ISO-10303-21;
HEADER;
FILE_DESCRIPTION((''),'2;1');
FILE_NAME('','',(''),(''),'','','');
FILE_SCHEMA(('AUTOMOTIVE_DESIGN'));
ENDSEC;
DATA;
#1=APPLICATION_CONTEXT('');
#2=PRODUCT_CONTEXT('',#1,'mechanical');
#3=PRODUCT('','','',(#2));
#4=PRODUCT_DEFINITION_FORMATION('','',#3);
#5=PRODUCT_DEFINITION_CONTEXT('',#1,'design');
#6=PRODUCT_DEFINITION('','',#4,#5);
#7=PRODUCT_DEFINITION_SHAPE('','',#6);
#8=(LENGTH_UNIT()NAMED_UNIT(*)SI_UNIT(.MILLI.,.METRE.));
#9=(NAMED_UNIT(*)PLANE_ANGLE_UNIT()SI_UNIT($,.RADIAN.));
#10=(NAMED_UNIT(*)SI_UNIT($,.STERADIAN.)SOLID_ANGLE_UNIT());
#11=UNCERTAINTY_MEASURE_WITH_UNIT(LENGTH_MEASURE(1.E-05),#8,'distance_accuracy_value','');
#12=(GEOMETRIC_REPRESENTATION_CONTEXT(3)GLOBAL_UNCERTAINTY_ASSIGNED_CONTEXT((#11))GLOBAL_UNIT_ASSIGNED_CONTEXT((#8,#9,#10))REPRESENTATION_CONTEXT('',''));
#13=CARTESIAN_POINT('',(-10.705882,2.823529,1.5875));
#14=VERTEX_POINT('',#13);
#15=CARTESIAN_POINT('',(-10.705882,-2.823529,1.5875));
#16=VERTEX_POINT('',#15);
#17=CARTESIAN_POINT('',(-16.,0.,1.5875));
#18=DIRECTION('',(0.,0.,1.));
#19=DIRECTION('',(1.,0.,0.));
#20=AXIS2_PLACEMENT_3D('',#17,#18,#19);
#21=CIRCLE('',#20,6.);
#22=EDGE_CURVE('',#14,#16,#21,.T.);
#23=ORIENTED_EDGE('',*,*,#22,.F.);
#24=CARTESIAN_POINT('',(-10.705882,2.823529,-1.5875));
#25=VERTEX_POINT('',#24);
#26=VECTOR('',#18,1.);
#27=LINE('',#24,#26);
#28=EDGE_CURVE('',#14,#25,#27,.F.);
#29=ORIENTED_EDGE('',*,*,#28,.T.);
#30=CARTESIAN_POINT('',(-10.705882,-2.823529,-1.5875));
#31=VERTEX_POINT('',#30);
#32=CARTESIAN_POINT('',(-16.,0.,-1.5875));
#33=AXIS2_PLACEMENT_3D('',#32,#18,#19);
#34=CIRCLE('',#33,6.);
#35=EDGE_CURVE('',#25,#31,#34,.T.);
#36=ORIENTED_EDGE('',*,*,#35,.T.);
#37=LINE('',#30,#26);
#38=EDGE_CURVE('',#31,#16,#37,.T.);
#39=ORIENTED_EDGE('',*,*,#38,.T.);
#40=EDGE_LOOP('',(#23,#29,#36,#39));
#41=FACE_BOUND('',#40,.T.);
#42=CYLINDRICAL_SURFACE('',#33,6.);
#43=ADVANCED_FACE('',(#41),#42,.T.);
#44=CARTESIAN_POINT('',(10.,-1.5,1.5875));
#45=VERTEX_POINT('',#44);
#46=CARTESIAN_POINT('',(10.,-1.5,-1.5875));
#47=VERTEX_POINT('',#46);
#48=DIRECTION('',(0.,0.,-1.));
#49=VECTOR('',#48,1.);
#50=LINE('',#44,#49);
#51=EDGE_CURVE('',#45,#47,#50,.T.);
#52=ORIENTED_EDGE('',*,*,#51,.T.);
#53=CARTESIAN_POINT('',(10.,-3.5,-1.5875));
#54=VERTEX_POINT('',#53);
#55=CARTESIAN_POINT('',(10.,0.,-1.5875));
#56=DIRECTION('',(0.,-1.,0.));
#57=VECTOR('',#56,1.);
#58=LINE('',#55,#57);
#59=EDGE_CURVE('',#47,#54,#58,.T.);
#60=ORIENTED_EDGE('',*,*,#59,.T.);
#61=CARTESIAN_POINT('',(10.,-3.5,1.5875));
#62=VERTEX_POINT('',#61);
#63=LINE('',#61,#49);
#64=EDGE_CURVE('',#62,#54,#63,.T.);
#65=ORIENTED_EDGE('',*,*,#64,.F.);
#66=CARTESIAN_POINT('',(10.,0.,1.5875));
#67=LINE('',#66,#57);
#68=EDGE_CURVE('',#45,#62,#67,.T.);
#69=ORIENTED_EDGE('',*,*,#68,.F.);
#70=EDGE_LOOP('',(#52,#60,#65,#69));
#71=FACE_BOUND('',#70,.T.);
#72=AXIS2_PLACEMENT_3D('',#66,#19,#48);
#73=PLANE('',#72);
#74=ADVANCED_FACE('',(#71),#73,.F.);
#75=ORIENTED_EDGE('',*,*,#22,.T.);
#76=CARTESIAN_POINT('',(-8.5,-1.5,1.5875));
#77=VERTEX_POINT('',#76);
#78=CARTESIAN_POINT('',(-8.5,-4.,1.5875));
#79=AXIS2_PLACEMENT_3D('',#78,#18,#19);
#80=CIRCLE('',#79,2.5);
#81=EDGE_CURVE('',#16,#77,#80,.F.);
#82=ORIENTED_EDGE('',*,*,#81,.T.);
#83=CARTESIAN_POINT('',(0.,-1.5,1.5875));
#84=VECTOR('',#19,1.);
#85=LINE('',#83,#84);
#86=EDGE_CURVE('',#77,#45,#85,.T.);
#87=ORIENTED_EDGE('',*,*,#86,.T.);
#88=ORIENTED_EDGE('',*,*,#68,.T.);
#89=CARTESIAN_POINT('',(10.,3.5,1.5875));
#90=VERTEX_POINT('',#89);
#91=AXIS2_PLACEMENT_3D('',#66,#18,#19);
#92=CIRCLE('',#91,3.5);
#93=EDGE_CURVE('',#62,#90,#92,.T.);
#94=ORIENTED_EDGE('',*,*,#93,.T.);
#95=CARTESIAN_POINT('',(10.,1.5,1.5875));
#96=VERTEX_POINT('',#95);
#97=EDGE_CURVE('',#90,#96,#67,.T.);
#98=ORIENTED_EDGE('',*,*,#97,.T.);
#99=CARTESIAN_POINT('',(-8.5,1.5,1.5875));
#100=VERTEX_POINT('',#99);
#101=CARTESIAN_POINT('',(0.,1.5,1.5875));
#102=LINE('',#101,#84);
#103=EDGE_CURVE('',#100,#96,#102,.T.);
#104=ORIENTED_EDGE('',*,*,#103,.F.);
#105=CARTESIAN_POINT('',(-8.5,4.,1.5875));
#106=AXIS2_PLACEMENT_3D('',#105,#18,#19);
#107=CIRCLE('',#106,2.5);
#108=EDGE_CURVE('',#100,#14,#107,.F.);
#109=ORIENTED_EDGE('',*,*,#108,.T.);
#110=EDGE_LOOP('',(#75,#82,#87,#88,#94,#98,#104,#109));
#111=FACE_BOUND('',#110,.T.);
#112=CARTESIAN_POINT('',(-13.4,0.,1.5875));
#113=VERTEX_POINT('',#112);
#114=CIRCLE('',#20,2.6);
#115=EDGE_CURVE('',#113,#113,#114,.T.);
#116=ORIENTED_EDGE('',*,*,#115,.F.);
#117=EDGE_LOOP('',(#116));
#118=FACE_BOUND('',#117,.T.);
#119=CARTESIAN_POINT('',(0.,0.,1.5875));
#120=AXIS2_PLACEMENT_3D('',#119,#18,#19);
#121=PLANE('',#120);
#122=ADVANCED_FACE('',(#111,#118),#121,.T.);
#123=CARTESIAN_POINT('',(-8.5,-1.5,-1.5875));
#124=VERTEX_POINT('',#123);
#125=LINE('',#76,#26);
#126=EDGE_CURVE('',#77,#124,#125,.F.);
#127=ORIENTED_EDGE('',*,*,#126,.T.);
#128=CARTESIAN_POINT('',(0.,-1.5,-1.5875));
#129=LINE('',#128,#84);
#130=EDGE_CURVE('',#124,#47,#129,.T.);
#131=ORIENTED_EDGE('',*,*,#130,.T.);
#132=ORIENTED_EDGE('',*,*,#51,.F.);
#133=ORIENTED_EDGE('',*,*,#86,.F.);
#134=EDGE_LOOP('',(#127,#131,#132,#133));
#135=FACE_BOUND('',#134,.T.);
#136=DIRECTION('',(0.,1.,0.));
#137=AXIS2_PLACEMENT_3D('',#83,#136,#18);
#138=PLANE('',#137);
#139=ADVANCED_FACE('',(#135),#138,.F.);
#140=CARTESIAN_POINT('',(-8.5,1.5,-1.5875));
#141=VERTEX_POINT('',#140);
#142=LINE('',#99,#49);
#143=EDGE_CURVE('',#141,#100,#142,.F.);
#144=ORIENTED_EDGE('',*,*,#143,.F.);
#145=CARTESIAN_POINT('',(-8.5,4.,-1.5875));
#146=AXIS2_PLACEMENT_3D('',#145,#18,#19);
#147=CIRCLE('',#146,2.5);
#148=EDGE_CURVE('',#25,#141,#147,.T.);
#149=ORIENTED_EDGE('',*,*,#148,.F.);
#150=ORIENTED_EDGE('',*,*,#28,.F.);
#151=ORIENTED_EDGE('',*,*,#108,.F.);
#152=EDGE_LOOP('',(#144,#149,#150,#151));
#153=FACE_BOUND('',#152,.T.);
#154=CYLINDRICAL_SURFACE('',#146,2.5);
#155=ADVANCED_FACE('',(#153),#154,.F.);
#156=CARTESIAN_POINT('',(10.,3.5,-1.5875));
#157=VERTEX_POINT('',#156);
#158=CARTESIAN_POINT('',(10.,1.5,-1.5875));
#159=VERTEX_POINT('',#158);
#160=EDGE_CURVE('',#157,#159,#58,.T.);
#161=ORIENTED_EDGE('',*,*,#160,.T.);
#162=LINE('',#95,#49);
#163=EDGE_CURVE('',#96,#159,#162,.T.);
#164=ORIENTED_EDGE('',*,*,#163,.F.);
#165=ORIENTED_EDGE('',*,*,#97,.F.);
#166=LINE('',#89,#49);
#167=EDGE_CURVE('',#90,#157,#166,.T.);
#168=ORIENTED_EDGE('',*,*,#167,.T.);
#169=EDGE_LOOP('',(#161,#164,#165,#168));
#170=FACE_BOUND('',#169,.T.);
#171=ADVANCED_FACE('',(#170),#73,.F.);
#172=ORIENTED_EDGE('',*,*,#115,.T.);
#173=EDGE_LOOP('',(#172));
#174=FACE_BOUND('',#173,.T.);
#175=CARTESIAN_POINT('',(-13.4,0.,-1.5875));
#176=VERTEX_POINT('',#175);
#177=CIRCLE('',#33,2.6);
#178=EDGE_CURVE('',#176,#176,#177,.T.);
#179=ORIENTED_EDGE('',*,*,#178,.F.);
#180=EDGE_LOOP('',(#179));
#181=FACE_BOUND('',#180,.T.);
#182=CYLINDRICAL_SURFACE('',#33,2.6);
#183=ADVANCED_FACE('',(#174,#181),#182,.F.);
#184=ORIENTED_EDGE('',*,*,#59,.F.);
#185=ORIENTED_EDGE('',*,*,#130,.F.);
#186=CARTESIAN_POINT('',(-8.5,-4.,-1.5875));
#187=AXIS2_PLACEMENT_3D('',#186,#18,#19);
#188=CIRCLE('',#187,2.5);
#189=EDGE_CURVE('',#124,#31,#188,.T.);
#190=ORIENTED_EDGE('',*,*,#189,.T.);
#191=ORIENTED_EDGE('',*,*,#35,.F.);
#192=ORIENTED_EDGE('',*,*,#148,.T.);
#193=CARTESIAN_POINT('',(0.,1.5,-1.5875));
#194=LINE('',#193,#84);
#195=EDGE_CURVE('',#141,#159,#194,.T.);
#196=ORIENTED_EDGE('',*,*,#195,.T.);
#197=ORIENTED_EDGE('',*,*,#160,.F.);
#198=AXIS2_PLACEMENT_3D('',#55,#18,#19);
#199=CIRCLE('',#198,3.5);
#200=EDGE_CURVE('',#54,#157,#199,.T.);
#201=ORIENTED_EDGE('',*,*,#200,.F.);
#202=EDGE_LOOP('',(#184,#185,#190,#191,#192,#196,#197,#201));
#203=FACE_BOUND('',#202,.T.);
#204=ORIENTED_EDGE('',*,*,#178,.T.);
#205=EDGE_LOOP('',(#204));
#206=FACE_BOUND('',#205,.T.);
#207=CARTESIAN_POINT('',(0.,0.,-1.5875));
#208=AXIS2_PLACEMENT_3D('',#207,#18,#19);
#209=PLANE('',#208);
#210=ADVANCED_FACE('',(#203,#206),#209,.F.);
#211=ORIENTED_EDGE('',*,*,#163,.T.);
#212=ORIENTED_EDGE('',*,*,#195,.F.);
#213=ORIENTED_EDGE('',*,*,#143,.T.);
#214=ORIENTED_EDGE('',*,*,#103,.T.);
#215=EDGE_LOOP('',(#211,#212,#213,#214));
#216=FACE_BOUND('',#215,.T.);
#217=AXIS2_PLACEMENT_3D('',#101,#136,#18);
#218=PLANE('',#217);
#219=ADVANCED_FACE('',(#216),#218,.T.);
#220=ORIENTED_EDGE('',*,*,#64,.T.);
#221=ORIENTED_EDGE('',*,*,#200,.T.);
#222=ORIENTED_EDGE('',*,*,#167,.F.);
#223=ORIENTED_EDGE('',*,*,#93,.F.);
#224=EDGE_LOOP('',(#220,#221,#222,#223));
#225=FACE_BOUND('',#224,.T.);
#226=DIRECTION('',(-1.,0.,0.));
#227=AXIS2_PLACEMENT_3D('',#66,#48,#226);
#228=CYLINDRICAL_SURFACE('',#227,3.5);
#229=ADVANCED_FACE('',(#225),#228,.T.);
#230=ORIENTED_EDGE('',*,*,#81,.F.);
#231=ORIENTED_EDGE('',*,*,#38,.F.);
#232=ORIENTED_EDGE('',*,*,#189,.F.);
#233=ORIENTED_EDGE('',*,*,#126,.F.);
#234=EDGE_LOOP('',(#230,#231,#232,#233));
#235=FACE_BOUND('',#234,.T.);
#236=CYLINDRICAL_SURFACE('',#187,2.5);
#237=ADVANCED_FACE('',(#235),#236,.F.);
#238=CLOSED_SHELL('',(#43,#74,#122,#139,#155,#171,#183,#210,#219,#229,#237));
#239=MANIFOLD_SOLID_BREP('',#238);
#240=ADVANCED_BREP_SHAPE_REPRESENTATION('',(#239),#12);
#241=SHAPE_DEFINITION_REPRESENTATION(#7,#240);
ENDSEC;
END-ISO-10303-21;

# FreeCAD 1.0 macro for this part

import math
import FreeCAD as App
import Part
import Sketcher
from FreeCAD import Vector
Q = App.Units.Quantity


def edges_at(feature, points):
    """Names of the edges that pass closest to the given points."""
    edges = feature.Shape.Edges
    near = lambda p: min(range(len(edges)), key=lambda i: edges[i].distToShape(Part.Vertex(*p))[0])
    return sorted({f"Edge{near(p) + 1}" for p in points})

doc = App.newDocument("Part")
body = doc.addObject("PartDesign::Body", "Body")

# Sketch on XY plane
sketch1 = doc.addObject("Sketcher::SketchObject", "Sketch")
body.addObject(sketch1)
sketch1.AttachmentSupport = (doc.XY_Plane, [""])
sketch1.MapMode = "FlatFace"
sketch1.addGeometry([
    Part.LineSegment(Vector(10, 3.5, 0), Vector(10, 1.5, 0)),  # 0
    Part.LineSegment(Vector(10, 1.5, 0), Vector(-10, 1.5, 0)),  # 1
    Part.LineSegment(Vector(-10, 1.5, 0), Vector(-10, -1.5, 0)),  # 2
    Part.LineSegment(Vector(-10, -1.5, 0), Vector(10, -1.5, 0)),  # 3
    Part.LineSegment(Vector(10, -1.5, 0), Vector(10, -3.5, 0)),  # 4
    Part.ArcOfCircle(Part.Circle(Vector(10, 0, 0), Vector(0, 0, 1), 3.5), math.radians(-90), math.radians(90)),  # 5
], False)
sketch1.addConstraint([
    Sketcher.Constraint("Coincident", 0, 2, 1, 1),
    Sketcher.Constraint("Coincident", 1, 2, 2, 1),
    Sketcher.Constraint("Coincident", 2, 2, 3, 1),
    Sketcher.Constraint("Coincident", 3, 2, 4, 1),
    Sketcher.Constraint("Coincident", 4, 2, 5, 1),
    Sketcher.Constraint("Coincident", 5, 2, 0, 1),
    Sketcher.Constraint("Vertical", 0),
    Sketcher.Constraint("Horizontal", 1),
    Sketcher.Constraint("Vertical", 2),
    Sketcher.Constraint("Horizontal", 3),
    Sketcher.Constraint("Vertical", 4),
    Sketcher.Constraint("Symmetric", 0, 2, 2, 2, -1, 1),
    Sketcher.Constraint("Symmetric", 4, 2, 5, 2, -1),
    Sketcher.Constraint("Vertical", 5, 3, 0, 2),
    Sketcher.Constraint("Radius", 5, Q("3.5 mm")),
    Sketcher.Constraint("DistanceX", 1, 2, 1, 1, Q("20 mm")),
    Sketcher.Constraint("DistanceY", 0, 2, 0, 1, Q("2 mm")),
])
pad1 = doc.addObject("PartDesign::Pad", "Pad")
body.addObject(pad1)
pad1.Profile = sketch1
pad1.Length = 3.175
pad1.Midplane = True
body2 = doc.addObject("PartDesign::Body", "Body001")

# Sketch on XY plane
sketch2 = doc.addObject("Sketcher::SketchObject", "Sketch001")
body2.addObject(sketch2)
sketch2.AttachmentSupport = (doc.getObject("XY_Plane001"), [""])
sketch2.MapMode = "FlatFace"
sketch2.AttachmentOffset = App.Placement(Vector(0, 0, 1.5875), App.Rotation())
sketch2.addGeometry(Part.Circle(Vector(-16, 0, 0), Vector(0, 0, 1), 6), False)
sketch2.addConstraint([
    Sketcher.Constraint("PointOnObject", 0, 3, -1),
    Sketcher.Constraint("Diameter", 0, Q("12 mm")),
    Sketcher.Constraint("DistanceX", 0, 3, -1, 1, Q("16 mm")),
])
pad2 = doc.addObject("PartDesign::Pad", "Pad001")
body2.addObject(pad2)
pad2.Profile = sketch2
pad2.Length = 3.175
pad2.Reversed = True

# Sketch on XY plane
sketch3 = doc.addObject("Sketcher::SketchObject", "Sketch002")
body2.addObject(sketch3)
sketch3.AttachmentSupport = (doc.getObject("XY_Plane001"), [""])
sketch3.MapMode = "FlatFace"
sketch3.AttachmentOffset = App.Placement(Vector(0, 0, 1.5875), App.Rotation())
sketch3.addGeometry(Part.Circle(Vector(-16, 0, 0), Vector(0, 0, 1), 2.6), False)
sketch3.addConstraint([
    Sketcher.Constraint("PointOnObject", 0, 3, -1),
    Sketcher.Constraint("Diameter", 0, Q("5.2 mm")),
    Sketcher.Constraint("DistanceX", 0, 3, -1, 1, Q("16 mm")),
])
pocket1 = doc.addObject("PartDesign::Pocket", "Pocket")
body2.addObject(pocket1)
pocket1.Profile = sketch3
pocket1.Type = "ThroughAll"
body.AllowCompound = True
doc.recompute()

boolean = doc.addObject("PartDesign::Boolean", "Boolean")
body.addObject(boolean)
boolean.Type = "Fuse"
boolean.addObjects([body2])

# Sketch on XY plane
sketch4 = doc.addObject("Sketcher::SketchObject", "Sketch003")
body.addObject(sketch4)
sketch4.AttachmentSupport = (doc.XY_Plane, [""])
sketch4.MapMode = "FlatFace"
sketch4.AttachmentOffset = App.Placement(Vector(0, 0, 1.5875), App.Rotation())
sketch4.addGeometry([
    Part.LineSegment(Vector(-10, -1.5, 0), Vector(-10, 0, 0)),
    Part.LineSegment(Vector(-10, 0, 0), Vector(-10.190525, -1.5, 0)),
    Part.LineSegment(Vector(-10.190525, -1.5, 0), Vector(-10, -1.5, 0)),
], False)
sketch4.addConstraint([
    Sketcher.Constraint("Coincident", 0, 2, 1, 1),
    Sketcher.Constraint("Coincident", 1, 2, 2, 1),
    Sketcher.Constraint("Coincident", 2, 2, 0, 1),
    Sketcher.Constraint("Vertical", 0),
    Sketcher.Constraint("Horizontal", 2),
    Sketcher.Constraint("PointOnObject", 0, 2, -1),
    Sketcher.Constraint("DistanceY", 0, 1, 0, 2, Q("1.5 mm")),
    Sketcher.Constraint("DistanceX", 0, 2, -1, 1, Q("10 mm")),
    Sketcher.Constraint("Distance", 1, Q("1.512052 mm")),
])
pad3 = doc.addObject("PartDesign::Pad", "Pad002")
body.addObject(pad3)
pad3.Profile = sketch4
pad3.Length = 3.175
pad3.Reversed = True
doc.recompute()

mirrored = doc.addObject("PartDesign::Mirrored", "Mirrored")
body.addObject(mirrored)
mirrored.Originals = [pad3]
mirrored.MirrorPlane = (doc.XZ_Plane, [""])
body.Tip = mirrored
doc.recompute()

fillet = doc.addObject("PartDesign::Fillet", "Fillet")
body.addObject(fillet)
fillet.Base = (mirrored, edges_at(mirrored, [(-10.191, -1.5, 0), (-10.191, 1.5, 0)]))
fillet.Radius = 2.5

doc.recompute()
